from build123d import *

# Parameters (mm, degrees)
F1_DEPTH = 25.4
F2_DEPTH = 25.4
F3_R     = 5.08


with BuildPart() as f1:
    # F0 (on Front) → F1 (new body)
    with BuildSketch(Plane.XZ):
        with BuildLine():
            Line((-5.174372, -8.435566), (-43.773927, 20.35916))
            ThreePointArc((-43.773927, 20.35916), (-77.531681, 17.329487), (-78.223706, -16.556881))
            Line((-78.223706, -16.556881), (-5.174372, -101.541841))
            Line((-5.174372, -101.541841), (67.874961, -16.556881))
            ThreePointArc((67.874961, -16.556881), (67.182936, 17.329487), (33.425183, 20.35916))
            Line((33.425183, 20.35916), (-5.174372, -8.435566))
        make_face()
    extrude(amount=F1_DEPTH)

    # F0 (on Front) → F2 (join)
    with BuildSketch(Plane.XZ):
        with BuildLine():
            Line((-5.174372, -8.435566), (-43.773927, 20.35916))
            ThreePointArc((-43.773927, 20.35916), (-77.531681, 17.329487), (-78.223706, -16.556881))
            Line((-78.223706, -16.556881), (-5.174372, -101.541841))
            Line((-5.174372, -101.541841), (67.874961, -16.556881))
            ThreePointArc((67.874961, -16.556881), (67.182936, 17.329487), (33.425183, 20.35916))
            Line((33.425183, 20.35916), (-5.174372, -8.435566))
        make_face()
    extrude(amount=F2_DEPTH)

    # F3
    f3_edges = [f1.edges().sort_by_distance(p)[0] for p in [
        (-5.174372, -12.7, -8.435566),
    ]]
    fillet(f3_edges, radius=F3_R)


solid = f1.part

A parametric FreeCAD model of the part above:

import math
import FreeCAD as App
import Part
import Sketcher
Q = App.Units.Quantity


def edges_at(feature, points):
    """Names of the edges that pass closest to the given points."""
    edges = feature.Shape.Edges
    near = lambda p: min(range(len(edges)), key=lambda i: edges[i].distToShape(Part.Vertex(*p))[0])
    return sorted({f"Edge{near(p) + 1}" for p in points})

doc = App.newDocument("Part")
body = doc.addObject("PartDesign::Body", "Body")

# Sketch on XZ plane
sketch1 = body.newObject("Sketcher::SketchObject", "Sketch")
sketch1.AttachmentSupport = (doc.getObject("XZ_Plane"), [""])
sketch1.MapMode = "FlatFace"
sketch1.addGeometry(Part.LineSegment(App.Vector(-5.174372, -8.435566, 0), App.Vector(-43.773927, 20.35916, 0)), False)
sketch1.addGeometry(Part.ArcOfCircle(Part.Circle(App.Vector(-58.961574, -0.000001, 0), App.Vector(0, 0, 1), 25.400001), math.radians(53.277581), math.radians(220.680902)), False)
sketch1.addGeometry(Part.LineSegment(App.Vector(-78.223706, -16.556881, 0), App.Vector(-5.174372, -101.541841, 0)), False)
sketch1.addGeometry(Part.LineSegment(App.Vector(-5.174372, -101.541841, 0), App.Vector(67.874961, -16.556881, 0)), False)
sketch1.addGeometry(Part.ArcOfCircle(Part.Circle(App.Vector(48.612829, -0.000001, 0), App.Vector(0, 0, 1), 25.4), math.radians(-40.680903), math.radians(126.722418)), False)
sketch1.addGeometry(Part.LineSegment(App.Vector(33.425183, 20.35916, 0), App.Vector(-5.174372, -8.435566, 0)), False)
sketch1.addConstraint(Sketcher.Constraint("Tangent", 0, 2, 1, 1))
sketch1.addConstraint(Sketcher.Constraint("Tangent", 1, 2, 2, 1))
sketch1.addConstraint(Sketcher.Constraint("Coincident", 2, 2, 3, 1))
sketch1.addConstraint(Sketcher.Constraint("Tangent", 3, 2, 4, 1))
sketch1.addConstraint(Sketcher.Constraint("Tangent", 4, 2, 5, 1))
sketch1.addConstraint(Sketcher.Constraint("Coincident", 5, 2, 0, 1))
sketch1.addConstraint(Sketcher.Constraint("Equal", 1, 4))
sketch1.addConstraint(Sketcher.Constraint("PointOnObject", 1, 3, -1))
sketch1.addConstraint(Sketcher.Constraint("PointOnObject", 4, 3, -1))
sketch1.addConstraint(Sketcher.Constraint("Horizontal", 1, 2, 3, 2))
sketch1.addConstraint(Sketcher.Constraint("Horizontal", 0, 2, 4, 2))
sketch1.addConstraint(Sketcher.Constraint("Radius", 1, Q("1 in")))
sketch1.addConstraint(Sketcher.Constraint("DistanceX", 2, 2, 4, 3, Q("53.787201 mm")))
sketch1.addConstraint(Sketcher.Constraint("DistanceY", 2, 2, 0, 2, Q("121.901001 mm")))
sketch1.addConstraint(Sketcher.Constraint("Distance", 0, Q("48.156639 mm")))
sketch1.addConstraint(Sketcher.Constraint("DistanceX", -1, 1, 4, 3, Q("48.612829 mm")))
pad1 = body.newObject("PartDesign::Pad", "Pad")
pad1.Profile = sketch1
pad1.Length = Q("1 in")

# Sketch on XZ plane
sketch2 = body.newObject("Sketcher::SketchObject", "Sketch001")
sketch2.AttachmentSupport = (doc.getObject("XZ_Plane"), [""])
sketch2.MapMode = "FlatFace"
sketch2.addGeometry(Part.LineSegment(App.Vector(-5.174372, -8.435566, 0), App.Vector(-43.773927, 20.35916, 0)), False)
sketch2.addGeometry(Part.ArcOfCircle(Part.Circle(App.Vector(-58.961574, -0.000001, 0), App.Vector(0, 0, 1), 25.400001), math.radians(53.277581), math.radians(220.680902)), False)
sketch2.addGeometry(Part.LineSegment(App.Vector(-78.223706, -16.556881, 0), App.Vector(-5.174372, -101.541841, 0)), False)
sketch2.addGeometry(Part.LineSegment(App.Vector(-5.174372, -101.541841, 0), App.Vector(67.874961, -16.556881, 0)), False)
sketch2.addGeometry(Part.ArcOfCircle(Part.Circle(App.Vector(48.612829, -0.000001, 0), App.Vector(0, 0, 1), 25.4), math.radians(-40.680903), math.radians(126.722418)), False)
sketch2.addGeometry(Part.LineSegment(App.Vector(33.425183, 20.35916, 0), App.Vector(-5.174372, -8.435566, 0)), False)
sketch2.addConstraint(Sketcher.Constraint("Tangent", 0, 2, 1, 1))
sketch2.addConstraint(Sketcher.Constraint("Tangent", 1, 2, 2, 1))
sketch2.addConstraint(Sketcher.Constraint("Coincident", 2, 2, 3, 1))
sketch2.addConstraint(Sketcher.Constraint("Tangent", 3, 2, 4, 1))
sketch2.addConstraint(Sketcher.Constraint("Tangent", 4, 2, 5, 1))
sketch2.addConstraint(Sketcher.Constraint("Coincident", 5, 2, 0, 1))
sketch2.addConstraint(Sketcher.Constraint("Equal", 1, 4))
sketch2.addConstraint(Sketcher.Constraint("PointOnObject", 1, 3, -1))
sketch2.addConstraint(Sketcher.Constraint("PointOnObject", 4, 3, -1))
sketch2.addConstraint(Sketcher.Constraint("Horizontal", 1, 2, 3, 2))
sketch2.addConstraint(Sketcher.Constraint("Horizontal", 0, 2, 4, 2))
sketch2.addConstraint(Sketcher.Constraint("Radius", 1, Q("1 in")))
sketch2.addConstraint(Sketcher.Constraint("DistanceX", 2, 2, 4, 3, Q("53.787201 mm")))
sketch2.addConstraint(Sketcher.Constraint("DistanceY", 2, 2, 0, 2, Q("121.901001 mm")))
sketch2.addConstraint(Sketcher.Constraint("Distance", 0, Q("48.156639 mm")))
sketch2.addConstraint(Sketcher.Constraint("DistanceX", -1, 1, 4, 3, Q("48.612829 mm")))
pad2 = body.newObject("PartDesign::Pad", "Pad001")
pad2.Profile = sketch2
pad2.Length = Q("1 in")
doc.recompute()

fillet = body.newObject("PartDesign::Fillet", "Fillet")
fillet.Base = (pad2, edges_at(pad2, [(-5.174, -12.7, -8.436)]))
fillet.Radius = Q("0.2 in")

doc.recompute()
